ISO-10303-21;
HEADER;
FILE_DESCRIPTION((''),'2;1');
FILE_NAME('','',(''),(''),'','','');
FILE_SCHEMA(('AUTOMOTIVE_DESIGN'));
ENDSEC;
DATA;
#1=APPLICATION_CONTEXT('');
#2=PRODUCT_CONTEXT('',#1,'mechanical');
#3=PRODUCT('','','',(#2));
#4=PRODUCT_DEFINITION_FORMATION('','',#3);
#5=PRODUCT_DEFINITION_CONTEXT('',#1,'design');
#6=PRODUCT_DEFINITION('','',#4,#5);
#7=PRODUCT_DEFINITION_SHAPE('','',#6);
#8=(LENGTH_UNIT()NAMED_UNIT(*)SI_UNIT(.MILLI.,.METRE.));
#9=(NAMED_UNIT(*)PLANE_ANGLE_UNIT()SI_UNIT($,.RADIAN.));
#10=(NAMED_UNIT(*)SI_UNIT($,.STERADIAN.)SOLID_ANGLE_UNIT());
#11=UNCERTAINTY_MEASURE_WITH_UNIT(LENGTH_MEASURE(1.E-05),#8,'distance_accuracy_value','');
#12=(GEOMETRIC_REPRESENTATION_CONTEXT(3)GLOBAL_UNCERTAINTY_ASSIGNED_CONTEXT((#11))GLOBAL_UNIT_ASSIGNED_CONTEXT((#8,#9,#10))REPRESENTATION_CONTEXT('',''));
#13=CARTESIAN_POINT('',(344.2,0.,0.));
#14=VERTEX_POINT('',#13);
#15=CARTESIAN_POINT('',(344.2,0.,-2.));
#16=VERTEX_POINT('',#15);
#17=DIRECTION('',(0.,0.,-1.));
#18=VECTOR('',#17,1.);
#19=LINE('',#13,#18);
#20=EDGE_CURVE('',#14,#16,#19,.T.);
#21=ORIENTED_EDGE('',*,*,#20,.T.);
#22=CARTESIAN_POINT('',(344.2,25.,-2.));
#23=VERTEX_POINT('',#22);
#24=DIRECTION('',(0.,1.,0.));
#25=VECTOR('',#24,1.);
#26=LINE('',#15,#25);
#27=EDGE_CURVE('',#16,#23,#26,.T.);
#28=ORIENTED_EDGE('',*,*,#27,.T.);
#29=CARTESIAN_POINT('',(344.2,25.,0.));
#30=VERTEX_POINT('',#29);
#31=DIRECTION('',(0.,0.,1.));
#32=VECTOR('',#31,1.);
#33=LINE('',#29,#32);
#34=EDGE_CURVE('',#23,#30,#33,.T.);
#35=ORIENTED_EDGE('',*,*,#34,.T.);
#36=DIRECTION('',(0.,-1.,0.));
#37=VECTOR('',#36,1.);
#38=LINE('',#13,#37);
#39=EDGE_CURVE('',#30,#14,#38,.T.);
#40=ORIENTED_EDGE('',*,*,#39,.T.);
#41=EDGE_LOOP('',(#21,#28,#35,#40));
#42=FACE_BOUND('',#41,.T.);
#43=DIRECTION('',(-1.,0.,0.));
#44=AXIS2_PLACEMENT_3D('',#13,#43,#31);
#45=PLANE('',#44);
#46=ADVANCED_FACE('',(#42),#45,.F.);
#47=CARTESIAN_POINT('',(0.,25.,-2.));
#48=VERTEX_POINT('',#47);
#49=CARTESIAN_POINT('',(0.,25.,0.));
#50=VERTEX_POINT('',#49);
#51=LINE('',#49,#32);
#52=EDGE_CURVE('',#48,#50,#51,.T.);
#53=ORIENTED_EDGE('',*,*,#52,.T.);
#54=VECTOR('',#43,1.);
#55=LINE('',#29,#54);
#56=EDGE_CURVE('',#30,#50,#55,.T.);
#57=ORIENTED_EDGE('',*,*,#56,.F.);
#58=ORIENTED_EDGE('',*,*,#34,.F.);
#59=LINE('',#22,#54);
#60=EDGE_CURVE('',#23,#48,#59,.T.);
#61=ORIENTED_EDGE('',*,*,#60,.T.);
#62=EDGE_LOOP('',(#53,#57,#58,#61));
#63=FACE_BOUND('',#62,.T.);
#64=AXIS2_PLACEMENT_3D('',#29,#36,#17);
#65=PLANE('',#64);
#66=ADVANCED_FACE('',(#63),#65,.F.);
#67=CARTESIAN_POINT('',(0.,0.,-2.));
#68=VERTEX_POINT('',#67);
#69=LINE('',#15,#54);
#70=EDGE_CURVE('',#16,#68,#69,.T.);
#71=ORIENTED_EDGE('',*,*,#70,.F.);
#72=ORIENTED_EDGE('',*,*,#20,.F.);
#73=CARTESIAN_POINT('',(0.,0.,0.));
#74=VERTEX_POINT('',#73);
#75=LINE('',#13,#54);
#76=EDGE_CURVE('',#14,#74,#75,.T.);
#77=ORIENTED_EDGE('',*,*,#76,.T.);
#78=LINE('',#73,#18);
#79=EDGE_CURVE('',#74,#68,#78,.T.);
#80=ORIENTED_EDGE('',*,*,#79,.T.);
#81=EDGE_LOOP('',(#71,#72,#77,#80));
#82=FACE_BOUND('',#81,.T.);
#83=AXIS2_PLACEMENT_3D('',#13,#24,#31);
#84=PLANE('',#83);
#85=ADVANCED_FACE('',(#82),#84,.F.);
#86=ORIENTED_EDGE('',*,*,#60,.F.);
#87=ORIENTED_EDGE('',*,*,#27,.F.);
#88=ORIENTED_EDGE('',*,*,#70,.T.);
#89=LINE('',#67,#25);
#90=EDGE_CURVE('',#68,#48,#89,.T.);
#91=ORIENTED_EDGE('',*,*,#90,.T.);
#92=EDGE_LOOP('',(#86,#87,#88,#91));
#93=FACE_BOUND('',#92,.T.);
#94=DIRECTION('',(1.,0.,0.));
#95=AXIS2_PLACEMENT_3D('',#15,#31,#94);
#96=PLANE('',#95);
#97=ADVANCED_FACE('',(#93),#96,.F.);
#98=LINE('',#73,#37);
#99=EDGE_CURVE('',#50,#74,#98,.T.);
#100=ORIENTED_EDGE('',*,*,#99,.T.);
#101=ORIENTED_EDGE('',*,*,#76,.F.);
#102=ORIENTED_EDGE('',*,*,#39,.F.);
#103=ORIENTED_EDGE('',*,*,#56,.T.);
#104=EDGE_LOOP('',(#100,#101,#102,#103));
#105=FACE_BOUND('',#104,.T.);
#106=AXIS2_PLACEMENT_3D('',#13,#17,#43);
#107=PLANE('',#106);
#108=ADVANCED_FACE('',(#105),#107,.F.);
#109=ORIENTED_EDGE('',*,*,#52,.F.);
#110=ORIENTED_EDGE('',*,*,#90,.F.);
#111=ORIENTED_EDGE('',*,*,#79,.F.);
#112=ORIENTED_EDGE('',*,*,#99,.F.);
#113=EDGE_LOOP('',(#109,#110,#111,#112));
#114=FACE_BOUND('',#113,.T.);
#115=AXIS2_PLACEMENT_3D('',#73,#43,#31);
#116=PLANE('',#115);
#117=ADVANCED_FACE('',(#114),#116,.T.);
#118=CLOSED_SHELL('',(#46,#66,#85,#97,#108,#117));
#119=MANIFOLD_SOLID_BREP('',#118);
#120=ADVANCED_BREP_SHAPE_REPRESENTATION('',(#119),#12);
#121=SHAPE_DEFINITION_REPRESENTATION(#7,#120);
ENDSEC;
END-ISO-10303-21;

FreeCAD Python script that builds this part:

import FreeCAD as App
import Part
import Sketcher
from FreeCAD import Vector

doc = App.newDocument("Part")
body = doc.addObject("PartDesign::Body", "Body")

# Sketch on YZ plane
sketch1 = doc.addObject("Sketcher::SketchObject", "Sketch")
body.addObject(sketch1)
sketch1.AttachmentSupport = (doc.YZ_Plane, [""])
sketch1.MapMode = "FlatFace"
sketch1.addGeometry([
    Part.LineSegment(Vector(25, 0, 0), Vector(0, 0, 0)),
    Part.LineSegment(Vector(0, 0, 0), Vector(0, -2, 0)),
    Part.LineSegment(Vector(0, -2, 0), Vector(25, -2, 0)),
    Part.LineSegment(Vector(25, -2, 0), Vector(25, 0, 0)),
], False)
sketch1.addConstraint([
    Sketcher.Constraint("Coincident", 0, 2, 1, 1),
    Sketcher.Constraint("Coincident", 1, 2, 2, 1),
    Sketcher.Constraint("Coincident", 2, 2, 3, 1),
    Sketcher.Constraint("Coincident", 3, 2, 0, 1),
    Sketcher.Constraint("Horizontal", 0),
    Sketcher.Constraint("Vertical", 1),
    Sketcher.Constraint("Horizontal", 2),
    Sketcher.Constraint("Vertical", 3),
    Sketcher.Constraint("Coincident", 0, 2, -1, 1),
    Sketcher.Constraint("DistanceX", 0, 2, 0, 1, 25.0),
    Sketcher.Constraint("DistanceY", 1, 2, 1, 1, 2.0),
])
pad1 = doc.addObject("PartDesign::Pad", "Pad")
body.addObject(pad1)
pad1.Profile = sketch1
pad1.Length = 344.2

doc.recompute()
